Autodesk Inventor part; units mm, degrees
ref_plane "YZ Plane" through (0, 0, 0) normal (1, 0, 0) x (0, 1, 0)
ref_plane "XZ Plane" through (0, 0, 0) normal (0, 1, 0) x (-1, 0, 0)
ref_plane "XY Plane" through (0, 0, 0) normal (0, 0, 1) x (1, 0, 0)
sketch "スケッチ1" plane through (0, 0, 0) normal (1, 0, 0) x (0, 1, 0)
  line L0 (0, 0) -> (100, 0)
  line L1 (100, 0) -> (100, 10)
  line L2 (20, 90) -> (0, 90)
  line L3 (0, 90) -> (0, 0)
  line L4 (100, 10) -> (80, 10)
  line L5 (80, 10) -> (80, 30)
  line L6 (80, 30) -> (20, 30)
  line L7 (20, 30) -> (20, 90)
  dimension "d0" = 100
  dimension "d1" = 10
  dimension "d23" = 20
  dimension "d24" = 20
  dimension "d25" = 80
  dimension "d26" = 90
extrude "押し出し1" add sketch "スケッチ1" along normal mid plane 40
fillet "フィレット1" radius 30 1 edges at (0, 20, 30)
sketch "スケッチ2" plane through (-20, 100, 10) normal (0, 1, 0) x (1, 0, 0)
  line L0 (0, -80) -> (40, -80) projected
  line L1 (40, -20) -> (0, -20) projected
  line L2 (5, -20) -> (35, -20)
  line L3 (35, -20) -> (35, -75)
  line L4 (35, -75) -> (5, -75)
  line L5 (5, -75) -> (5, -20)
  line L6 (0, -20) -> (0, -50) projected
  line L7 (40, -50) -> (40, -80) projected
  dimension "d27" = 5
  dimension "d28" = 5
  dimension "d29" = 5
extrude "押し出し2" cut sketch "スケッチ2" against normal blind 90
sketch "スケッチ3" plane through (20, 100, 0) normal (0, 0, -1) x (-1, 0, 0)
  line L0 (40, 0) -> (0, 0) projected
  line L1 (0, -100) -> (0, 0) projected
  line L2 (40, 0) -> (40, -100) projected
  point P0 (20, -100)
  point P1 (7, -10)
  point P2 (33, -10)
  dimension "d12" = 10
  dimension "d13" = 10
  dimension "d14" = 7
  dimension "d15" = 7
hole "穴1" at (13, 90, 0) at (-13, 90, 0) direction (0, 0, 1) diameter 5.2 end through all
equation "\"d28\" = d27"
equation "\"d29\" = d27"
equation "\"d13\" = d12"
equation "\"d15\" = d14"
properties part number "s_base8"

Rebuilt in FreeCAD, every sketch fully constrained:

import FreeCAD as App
import Part
import Sketcher
from FreeCAD import Vector
Q = App.Units.Quantity


def edges_at(feature, points):
    """Names of the edges that pass closest to the given points."""
    edges = feature.Shape.Edges
    near = lambda p: min(range(len(edges)), key=lambda i: edges[i].distToShape(Part.Vertex(*p))[0])
    return sorted({f"Edge{near(p) + 1}" for p in points})


def add_polygon(sketch, points):
    """Adds a closed chain of lines whose ends are joined by coincident constraints."""
    first, n = sketch.GeometryCount, len(points)
    for a, b in zip(points, points[1:] + points[:1]):
        sketch.addGeometry(Part.LineSegment(App.Vector(*a, 0), App.Vector(*b, 0)), False)
    for i in range(n):
        sketch.addConstraint(Sketcher.Constraint("Coincident", first + i, 2, first + (i + 1) % n, 1))

doc = App.newDocument("Part")
params = doc.addObject("Spreadsheet::Sheet", "Params")
for row, (alias, value) in enumerate([
    ("sketch1_width", "100 mm"),
    ("sketch1_width2", "20 mm"),
    ("sketch1_height", "90 mm"),
    ("pad1_length", "40 mm"),
    ("fillet_radius", "30 mm"),
    ("sketch2_width", "30 mm"),
    ("sketch2_height", "55 mm"),
    ("pocket1_length", "90 mm"),
    ("sketch3_diameter", "5.2 mm"),
    ("hole_diameter", "5.2 mm"),
], start=1):
    params.set(f"A{row}", alias)
    params.set(f"B{row}", "=" + value)
    params.setAlias(f"B{row}", alias)

body = doc.addObject("PartDesign::Body", "Body")

# Sketch on YZ plane
sketch1 = body.newObject("Sketcher::SketchObject", "Sketch")
sketch1.AttachmentSupport = (doc.getObject("YZ_Plane"), [""])
sketch1.MapMode = "FlatFace"
add_polygon(sketch1, [(0, 90), (0, 0), (100, 0), (100, 10), (80, 10), (80, 30), (20, 30), (20, 90)])  # lines 0-7
sketch1.addConstraint([
    Sketcher.Constraint("Vertical", 0),
    Sketcher.Constraint("Horizontal", 1),
    Sketcher.Constraint("Vertical", 2),
    Sketcher.Constraint("Horizontal", 3),
    Sketcher.Constraint("Vertical", 4),
    Sketcher.Constraint("Horizontal", 5),
    Sketcher.Constraint("Vertical", 6),
    Sketcher.Constraint("Horizontal", 7),
    Sketcher.Constraint("Coincident", 0, 2, -1, 1),
    Sketcher.Constraint("Equal", 3, 7),
    Sketcher.Constraint("Equal", 7, 4),
    Sketcher.Constraint("Equal", 5, 6),
    Sketcher.Constraint("DistanceX", 1, 1, 1, 2, Q("100 mm")),
    Sketcher.Constraint("DistanceX", 3, 2, 3, 1, Q("20 mm")),
    Sketcher.Constraint("DistanceY", 0, 2, 0, 1, Q("90 mm")),
])
sketch1.setExpression("Constraints[20]", "Params.sketch1_width")
sketch1.setExpression("Constraints[21]", "Params.sketch1_width2")
sketch1.setExpression("Constraints[22]", "Params.sketch1_height")
pad1 = body.newObject("PartDesign::Pad", "Pad")
pad1.Profile = sketch1
pad1.setExpression("Length", "Params.pad1_length")
pad1.Midplane = True
doc.recompute()

fillet = body.newObject("PartDesign::Fillet", "Fillet")
fillet.Base = (pad1, edges_at(pad1, [(0, 20, 30)]))
fillet.setExpression("Radius", "Params.fillet_radius")

# Sketch on XZ plane
sketch2 = body.newObject("Sketcher::SketchObject", "Sketch001")
sketch2.AttachmentSupport = (doc.getObject("XZ_Plane"), [""])
sketch2.MapMode = "FlatFace"
sketch2.AttachmentOffset = App.Placement(Vector(0, 0, -100), App.Rotation())
add_polygon(sketch2, [(15, 85), (15, 30), (-15, 30), (-15, 85)])  # lines 0-3
sketch2.addConstraint([
    Sketcher.Constraint("Vertical", 0),
    Sketcher.Constraint("Horizontal", 1),
    Sketcher.Constraint("Vertical", 2),
    Sketcher.Constraint("Horizontal", 3),
    Sketcher.Constraint("DistanceX", 1, 2, 1, 1, Q("30 mm")),
    Sketcher.Constraint("DistanceY", 0, 2, 0, 1, Q("55 mm")),
    Sketcher.Constraint("DistanceX", -1, 1, 0, 2, Q("15 mm")),
    Sketcher.Constraint("DistanceY", -1, 1, 0, 2, Q("30 mm")),
])
sketch2.setExpression("Constraints[8]", "Params.sketch2_width")
sketch2.setExpression("Constraints[9]", "Params.sketch2_height")
pocket1 = body.newObject("PartDesign::Pocket", "Pocket")
pocket1.Profile = sketch2
pocket1.setExpression("Length", "Params.pocket1_length")
pocket1.Reversed = True

# Sketch on XY plane
sketch3 = body.newObject("Sketcher::SketchObject", "Sketch002")
sketch3.AttachmentSupport = (doc.getObject("XY_Plane"), [""])
sketch3.MapMode = "FlatFace"
sketch3.addGeometry([
    Part.Circle(Vector(13, 90, 0), Vector(0, 0, 1), 2.6),
    Part.Circle(Vector(-13, 90, 0), Vector(0, 0, 1), 2.6),
], False)
sketch3.addConstraint([
    Sketcher.Constraint("Equal", 0, 1),
    Sketcher.Constraint("Symmetric", 0, 3, 1, 3, -2),
    Sketcher.Constraint("Diameter", 0, Q("5.2 mm")),
    Sketcher.Constraint("DistanceX", -1, 1, 0, 3, Q("13 mm")),
    Sketcher.Constraint("DistanceY", -1, 1, 0, 3, Q("90 mm")),
])
sketch3.setExpression("Constraints[2]", "Params.sketch3_diameter")
doc.recompute()
hole = body.newObject("PartDesign::Hole", "Hole")
hole.Profile = sketch3
hole.ThreadType = "None"
hole.setExpression("Diameter", "Params.hole_diameter")
hole.DepthType = "ThroughAll"
hole.Reversed = True

doc.recompute()
